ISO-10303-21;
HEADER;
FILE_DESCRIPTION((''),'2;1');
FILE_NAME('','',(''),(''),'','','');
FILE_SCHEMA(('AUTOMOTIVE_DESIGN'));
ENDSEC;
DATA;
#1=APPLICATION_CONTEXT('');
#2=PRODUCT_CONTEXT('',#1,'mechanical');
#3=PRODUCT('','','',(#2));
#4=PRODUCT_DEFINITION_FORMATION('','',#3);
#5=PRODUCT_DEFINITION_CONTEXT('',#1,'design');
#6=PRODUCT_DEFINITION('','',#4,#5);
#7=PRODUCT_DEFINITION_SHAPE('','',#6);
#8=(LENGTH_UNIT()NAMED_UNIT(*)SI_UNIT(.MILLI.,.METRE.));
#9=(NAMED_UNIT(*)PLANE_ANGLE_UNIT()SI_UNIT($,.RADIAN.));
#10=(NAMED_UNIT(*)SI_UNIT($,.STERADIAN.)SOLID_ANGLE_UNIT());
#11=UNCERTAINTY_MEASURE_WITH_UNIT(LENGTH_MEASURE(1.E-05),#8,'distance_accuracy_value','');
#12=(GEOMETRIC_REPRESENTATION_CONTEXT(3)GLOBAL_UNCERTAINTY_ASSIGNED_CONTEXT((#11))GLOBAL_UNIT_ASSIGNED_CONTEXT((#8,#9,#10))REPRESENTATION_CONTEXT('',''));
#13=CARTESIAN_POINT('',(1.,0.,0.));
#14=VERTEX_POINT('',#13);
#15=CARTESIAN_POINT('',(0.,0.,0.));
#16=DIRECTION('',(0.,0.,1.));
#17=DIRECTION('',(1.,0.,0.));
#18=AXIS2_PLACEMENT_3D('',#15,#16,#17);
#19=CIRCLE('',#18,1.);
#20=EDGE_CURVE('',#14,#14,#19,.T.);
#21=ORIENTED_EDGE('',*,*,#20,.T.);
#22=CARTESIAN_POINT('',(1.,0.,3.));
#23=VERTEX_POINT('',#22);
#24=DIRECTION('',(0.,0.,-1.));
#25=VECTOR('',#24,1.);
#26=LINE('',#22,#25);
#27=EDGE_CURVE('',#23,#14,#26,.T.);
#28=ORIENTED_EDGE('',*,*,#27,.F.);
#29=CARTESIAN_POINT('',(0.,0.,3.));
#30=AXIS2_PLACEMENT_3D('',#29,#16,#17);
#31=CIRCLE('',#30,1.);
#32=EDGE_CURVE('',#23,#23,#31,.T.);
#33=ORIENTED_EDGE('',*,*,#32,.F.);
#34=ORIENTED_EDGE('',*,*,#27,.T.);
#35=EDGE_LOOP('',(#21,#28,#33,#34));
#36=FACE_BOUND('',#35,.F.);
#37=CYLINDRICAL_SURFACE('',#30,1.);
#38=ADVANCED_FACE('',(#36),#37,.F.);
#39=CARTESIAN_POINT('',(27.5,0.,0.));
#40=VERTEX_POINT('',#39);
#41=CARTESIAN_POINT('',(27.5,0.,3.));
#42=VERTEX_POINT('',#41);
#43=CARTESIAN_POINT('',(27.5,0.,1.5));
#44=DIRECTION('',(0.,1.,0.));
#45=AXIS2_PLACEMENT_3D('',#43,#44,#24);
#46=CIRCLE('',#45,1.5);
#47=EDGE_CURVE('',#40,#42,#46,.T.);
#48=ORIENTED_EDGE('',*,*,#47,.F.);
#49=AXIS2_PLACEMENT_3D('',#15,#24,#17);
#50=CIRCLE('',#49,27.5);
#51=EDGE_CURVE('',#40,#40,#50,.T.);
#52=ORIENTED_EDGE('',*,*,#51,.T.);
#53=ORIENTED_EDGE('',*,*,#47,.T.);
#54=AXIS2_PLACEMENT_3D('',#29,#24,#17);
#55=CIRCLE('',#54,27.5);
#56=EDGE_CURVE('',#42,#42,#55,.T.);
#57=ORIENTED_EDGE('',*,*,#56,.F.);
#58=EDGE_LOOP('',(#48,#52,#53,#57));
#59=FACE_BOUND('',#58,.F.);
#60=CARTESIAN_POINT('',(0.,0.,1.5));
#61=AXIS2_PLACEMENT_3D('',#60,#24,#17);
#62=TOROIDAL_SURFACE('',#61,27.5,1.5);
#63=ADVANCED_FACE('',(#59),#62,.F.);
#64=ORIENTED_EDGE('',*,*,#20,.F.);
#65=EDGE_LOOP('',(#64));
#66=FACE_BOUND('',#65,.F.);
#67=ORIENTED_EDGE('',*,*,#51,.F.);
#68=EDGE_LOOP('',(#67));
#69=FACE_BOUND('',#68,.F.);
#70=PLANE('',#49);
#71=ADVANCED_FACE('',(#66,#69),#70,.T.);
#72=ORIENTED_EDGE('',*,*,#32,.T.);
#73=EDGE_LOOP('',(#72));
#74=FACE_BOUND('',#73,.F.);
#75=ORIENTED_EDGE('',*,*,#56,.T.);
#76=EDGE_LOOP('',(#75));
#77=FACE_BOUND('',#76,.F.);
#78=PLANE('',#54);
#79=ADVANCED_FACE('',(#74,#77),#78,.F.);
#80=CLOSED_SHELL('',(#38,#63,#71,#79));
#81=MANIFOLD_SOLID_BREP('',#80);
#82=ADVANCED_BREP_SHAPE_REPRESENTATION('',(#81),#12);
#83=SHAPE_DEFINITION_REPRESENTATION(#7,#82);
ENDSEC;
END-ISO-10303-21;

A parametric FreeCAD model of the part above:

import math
import FreeCAD as App
import Part
import Sketcher
from FreeCAD import Vector

doc = App.newDocument("Part")
body = doc.addObject("PartDesign::Body", "Body")

sketch1 = body.newObject("Sketcher::SketchObject", "Sketch")
sketch1.AttachmentSupport = (doc.getObject("XZ_Plane"), [""])
sketch1.MapMode = "FlatFace"
sketch1.addGeometry([
    Part.LineSegment(Vector(0, 3, 0), Vector(0, 0, 0)),
    Part.LineSegment(Vector(0, 0, 0), Vector(27.5, 0, 0)),
    Part.ArcOfCircle(Part.Circle(Vector(27.5, 1.5, 0), Vector(0, 0, 1), 1.5), math.radians(90), math.radians(270)),
    Part.LineSegment(Vector(27.5, 3, 0), Vector(0, 3, 0)),
], False)
sketch1.addConstraint([
    Sketcher.Constraint("Coincident", 0, 2, 1, 1),
    Sketcher.Constraint("Tangent", 1, 2, 2, 2),
    Sketcher.Constraint("Tangent", 2, 1, 3, 1),
    Sketcher.Constraint("Coincident", 3, 2, 0, 1),
    Sketcher.Constraint("Vertical", 0),
    Sketcher.Constraint("Horizontal", 1),
    Sketcher.Constraint("Horizontal", 3),
    Sketcher.Constraint("Coincident", 0, 2, -1, 1),
    Sketcher.Constraint("Radius", 2, 1.5),
    Sketcher.Constraint("DistanceX", 1, 1, 1, 2, 27.5),
])
revolution = body.newObject("PartDesign::Revolution", "Revolution")
revolution.Profile = sketch1
revolution.ReferenceAxis = (sketch1, ["V_Axis"])
revolution.Angle = 360

sketch2 = body.newObject("Sketcher::SketchObject", "Sketch001")
sketch2.AttachmentSupport = (doc.getObject("XY_Plane"), [""])
sketch2.MapMode = "FlatFace"
sketch2.AttachmentOffset = App.Placement(Vector(0, 0, 3), App.Rotation())
sketch2.addGeometry(Part.Circle(Vector(0, 0, 0), Vector(0, 0, 1), 1), False)
sketch2.addConstraint([
    Sketcher.Constraint("Coincident", 0, 3, -1, 1),
    Sketcher.Constraint("Diameter", 0, 2.0),
])
pocket1 = body.newObject("PartDesign::Pocket", "Pocket")
pocket1.Profile = sketch2
pocket1.Length = 3

doc.recompute()
